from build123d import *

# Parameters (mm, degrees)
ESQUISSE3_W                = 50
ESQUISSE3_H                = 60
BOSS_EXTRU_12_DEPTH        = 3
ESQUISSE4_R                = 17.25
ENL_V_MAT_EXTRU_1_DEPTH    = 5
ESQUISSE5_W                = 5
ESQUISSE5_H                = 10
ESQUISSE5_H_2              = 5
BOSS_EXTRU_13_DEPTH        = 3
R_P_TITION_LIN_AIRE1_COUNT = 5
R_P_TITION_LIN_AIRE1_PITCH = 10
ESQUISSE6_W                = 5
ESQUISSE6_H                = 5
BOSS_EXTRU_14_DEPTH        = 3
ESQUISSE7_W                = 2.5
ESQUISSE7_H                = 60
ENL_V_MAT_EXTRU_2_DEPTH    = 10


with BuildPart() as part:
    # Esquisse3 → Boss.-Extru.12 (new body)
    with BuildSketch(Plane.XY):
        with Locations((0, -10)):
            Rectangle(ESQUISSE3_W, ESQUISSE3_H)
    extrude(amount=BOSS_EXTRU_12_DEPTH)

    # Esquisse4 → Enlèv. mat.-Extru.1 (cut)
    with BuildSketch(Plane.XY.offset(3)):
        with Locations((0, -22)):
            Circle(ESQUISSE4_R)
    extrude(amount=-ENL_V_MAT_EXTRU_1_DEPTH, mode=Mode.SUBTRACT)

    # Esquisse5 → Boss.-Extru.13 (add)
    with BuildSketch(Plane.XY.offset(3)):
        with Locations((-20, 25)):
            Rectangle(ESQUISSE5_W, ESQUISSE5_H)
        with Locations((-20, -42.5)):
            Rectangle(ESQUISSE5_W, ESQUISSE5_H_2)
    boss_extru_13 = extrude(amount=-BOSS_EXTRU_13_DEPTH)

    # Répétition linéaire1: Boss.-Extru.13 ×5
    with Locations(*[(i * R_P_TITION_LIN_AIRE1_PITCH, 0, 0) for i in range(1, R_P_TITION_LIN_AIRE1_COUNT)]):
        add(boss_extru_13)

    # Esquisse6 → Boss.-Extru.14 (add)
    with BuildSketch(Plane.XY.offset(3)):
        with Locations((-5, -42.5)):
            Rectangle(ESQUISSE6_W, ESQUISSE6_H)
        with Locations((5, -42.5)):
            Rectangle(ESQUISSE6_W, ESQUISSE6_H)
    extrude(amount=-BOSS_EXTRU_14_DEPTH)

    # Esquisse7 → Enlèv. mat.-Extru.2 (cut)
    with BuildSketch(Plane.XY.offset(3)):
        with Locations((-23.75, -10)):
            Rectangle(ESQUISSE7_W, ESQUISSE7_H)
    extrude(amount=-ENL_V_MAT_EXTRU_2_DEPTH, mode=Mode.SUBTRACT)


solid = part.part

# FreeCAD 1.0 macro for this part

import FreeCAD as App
import Part
import Sketcher
from FreeCAD import Vector


def add_polygon(sketch, points):
    """Adds a closed chain of lines whose ends are joined by coincident constraints."""
    first, n = sketch.GeometryCount, len(points)
    for a, b in zip(points, points[1:] + points[:1]):
        sketch.addGeometry(Part.LineSegment(App.Vector(*a, 0), App.Vector(*b, 0)), False)
    for i in range(n):
        sketch.addConstraint(Sketcher.Constraint("Coincident", first + i, 2, first + (i + 1) % n, 1))

doc = App.newDocument("Part")
body = doc.addObject("PartDesign::Body", "Body")

# Sketch on XY plane
sketch1 = doc.addObject("Sketcher::SketchObject", "Sketch")
body.addObject(sketch1)
sketch1.AttachmentSupport = (doc.XY_Plane, [""])
sketch1.MapMode = "FlatFace"
add_polygon(sketch1, [(-25, 20), (-25, -40), (25, -40), (25, 20)])  # lines 0-3
sketch1.addConstraint([
    Sketcher.Constraint("Vertical", 0),
    Sketcher.Constraint("Horizontal", 1),
    Sketcher.Constraint("Vertical", 2),
    Sketcher.Constraint("Horizontal", 3),
    Sketcher.Constraint("DistanceX", 1, 1, 1, 2, 50.0),
    Sketcher.Constraint("DistanceY", 0, 2, 0, 1, 60.0),
    Sketcher.Constraint("DistanceX", 0, 2, -1, 1, 25.0),
    Sketcher.Constraint("DistanceY", 0, 2, -1, 1, 40.0),
])
pad1 = doc.addObject("PartDesign::Pad", "Pad")
body.addObject(pad1)
pad1.Profile = sketch1
pad1.Length = 3

# Sketch on XY plane
sketch2 = doc.addObject("Sketcher::SketchObject", "Sketch001")
body.addObject(sketch2)
sketch2.AttachmentSupport = (doc.XY_Plane, [""])
sketch2.MapMode = "FlatFace"
sketch2.AttachmentOffset = App.Placement(Vector(0, 0, 3), App.Rotation())
sketch2.addGeometry(Part.Circle(Vector(0, -22, 0), Vector(0, 0, 1), 17), False)
sketch2.addConstraint([
    Sketcher.Constraint("PointOnObject", 0, 3, -2),
    Sketcher.Constraint("Diameter", 0, 34.5),
    Sketcher.Constraint("DistanceY", 0, 3, -1, 1, 22.0),
])
pocket1 = doc.addObject("PartDesign::Pocket", "Pocket")
body.addObject(pocket1)
pocket1.Profile = sketch2
pocket1.Length = 5

# Sketch on XY plane
sketch3 = doc.addObject("Sketcher::SketchObject", "Sketch002")
body.addObject(sketch3)
sketch3.AttachmentSupport = (doc.XY_Plane, [""])
sketch3.MapMode = "FlatFace"
sketch3.AttachmentOffset = App.Placement(Vector(0, 0, 3), App.Rotation())
add_polygon(sketch3, [(-22, 30), (-22, 20), (-18, 20), (-18, 30)])  # lines 0-3
add_polygon(sketch3, [(-22, -40), (-22, -45), (-18, -45), (-18, -40)])  # lines 4-7
sketch3.addConstraint([
    Sketcher.Constraint("Vertical", 0),
    Sketcher.Constraint("Horizontal", 1),
    Sketcher.Constraint("Vertical", 2),
    Sketcher.Constraint("Horizontal", 3),
    Sketcher.Constraint("Vertical", 4),
    Sketcher.Constraint("Horizontal", 5),
    Sketcher.Constraint("Vertical", 6),
    Sketcher.Constraint("Horizontal", 7),
    Sketcher.Constraint("Vertical", 3, 2, 4, 2),
    Sketcher.Constraint("Vertical", 2, 2, 5, 2),
    Sketcher.Constraint("Equal", 7, 4),
    Sketcher.Constraint("DistanceX", 1, 1, 1, 2, 5.0),
    Sketcher.Constraint("DistanceY", 0, 2, 0, 1, 10.0),
    Sketcher.Constraint("DistanceY", -1, 1, 0, 2, 20.0),
    Sketcher.Constraint("DistanceY", 4, 2, -1, 1, 45.0),
    Sketcher.Constraint("DistanceX", 0, 2, -1, 1, 22.5),
])
pad2 = doc.addObject("PartDesign::Pad", "Pad001")
body.addObject(pad2)
pad2.Profile = sketch3
pad2.Length = 3
pad2.Reversed = True
doc.recompute()

linearpattern = doc.addObject("PartDesign::LinearPattern", "LinearPattern")
body.addObject(linearpattern)
linearpattern.Originals = [pad2]
linearpattern.Direction = (doc.X_Axis, [""])
linearpattern.Mode = "offset"
linearpattern.Offset = 10
linearpattern.Occurrences = 5
body.Tip = linearpattern

# Sketch on XY plane
sketch4 = doc.addObject("Sketcher::SketchObject", "Sketch003")
body.addObject(sketch4)
sketch4.AttachmentSupport = (doc.XY_Plane, [""])
sketch4.MapMode = "FlatFace"
sketch4.AttachmentOffset = App.Placement(Vector(0, 0, 3), App.Rotation())
add_polygon(sketch4, [(-8, -40), (-8, -45), (-2, -45), (-2, -40)])  # lines 0-3
add_polygon(sketch4, [(2, -40), (2, -45), (8, -45), (8, -40)])  # lines 4-7
sketch4.addConstraint([
    Sketcher.Constraint("Vertical", 0),
    Sketcher.Constraint("Horizontal", 1),
    Sketcher.Constraint("Vertical", 2),
    Sketcher.Constraint("Horizontal", 3),
    Sketcher.Constraint("Vertical", 4),
    Sketcher.Constraint("Horizontal", 5),
    Sketcher.Constraint("Vertical", 6),
    Sketcher.Constraint("Horizontal", 7),
    Sketcher.Constraint("Symmetric", 1, 2, 4, 2, -2),
    Sketcher.Constraint("Symmetric", 3, 2, 6, 2, -2),
    Sketcher.Constraint("Equal", 7, 0),
    Sketcher.Constraint("DistanceX", 1, 1, 1, 2, 5.0),
    Sketcher.Constraint("DistanceY", 0, 2, -1, 1, 45.0),
    Sketcher.Constraint("DistanceX", 1, 2, 4, 2, 5.0),
])
pad3 = doc.addObject("PartDesign::Pad", "Pad002")
body.addObject(pad3)
pad3.Profile = sketch4
pad3.Length = 3
pad3.Reversed = True

# Sketch on XY plane
sketch5 = doc.addObject("Sketcher::SketchObject", "Sketch004")
body.addObject(sketch5)
sketch5.AttachmentSupport = (doc.XY_Plane, [""])
sketch5.MapMode = "FlatFace"
sketch5.AttachmentOffset = App.Placement(Vector(0, 0, 3), App.Rotation())
add_polygon(sketch5, [(-25, 20), (-25, -40), (-22.5, -40), (-22.5, 20)])  # lines 0-3
sketch5.addConstraint([
    Sketcher.Constraint("Vertical", 0),
    Sketcher.Constraint("Horizontal", 1),
    Sketcher.Constraint("Vertical", 2),
    Sketcher.Constraint("Horizontal", 3),
    Sketcher.Constraint("DistanceY", 0, 2, 0, 1, 60.0),
    Sketcher.Constraint("DistanceX", 1, 1, 1, 2, 2.5),
    Sketcher.Constraint("DistanceX", 0, 2, -1, 1, 25.0),
    Sketcher.Constraint("DistanceY", 0, 2, -1, 1, 40.0),
])
pocket2 = doc.addObject("PartDesign::Pocket", "Pocket001")
body.addObject(pocket2)
pocket2.Profile = sketch5
pocket2.Length = 10

doc.recompute()
